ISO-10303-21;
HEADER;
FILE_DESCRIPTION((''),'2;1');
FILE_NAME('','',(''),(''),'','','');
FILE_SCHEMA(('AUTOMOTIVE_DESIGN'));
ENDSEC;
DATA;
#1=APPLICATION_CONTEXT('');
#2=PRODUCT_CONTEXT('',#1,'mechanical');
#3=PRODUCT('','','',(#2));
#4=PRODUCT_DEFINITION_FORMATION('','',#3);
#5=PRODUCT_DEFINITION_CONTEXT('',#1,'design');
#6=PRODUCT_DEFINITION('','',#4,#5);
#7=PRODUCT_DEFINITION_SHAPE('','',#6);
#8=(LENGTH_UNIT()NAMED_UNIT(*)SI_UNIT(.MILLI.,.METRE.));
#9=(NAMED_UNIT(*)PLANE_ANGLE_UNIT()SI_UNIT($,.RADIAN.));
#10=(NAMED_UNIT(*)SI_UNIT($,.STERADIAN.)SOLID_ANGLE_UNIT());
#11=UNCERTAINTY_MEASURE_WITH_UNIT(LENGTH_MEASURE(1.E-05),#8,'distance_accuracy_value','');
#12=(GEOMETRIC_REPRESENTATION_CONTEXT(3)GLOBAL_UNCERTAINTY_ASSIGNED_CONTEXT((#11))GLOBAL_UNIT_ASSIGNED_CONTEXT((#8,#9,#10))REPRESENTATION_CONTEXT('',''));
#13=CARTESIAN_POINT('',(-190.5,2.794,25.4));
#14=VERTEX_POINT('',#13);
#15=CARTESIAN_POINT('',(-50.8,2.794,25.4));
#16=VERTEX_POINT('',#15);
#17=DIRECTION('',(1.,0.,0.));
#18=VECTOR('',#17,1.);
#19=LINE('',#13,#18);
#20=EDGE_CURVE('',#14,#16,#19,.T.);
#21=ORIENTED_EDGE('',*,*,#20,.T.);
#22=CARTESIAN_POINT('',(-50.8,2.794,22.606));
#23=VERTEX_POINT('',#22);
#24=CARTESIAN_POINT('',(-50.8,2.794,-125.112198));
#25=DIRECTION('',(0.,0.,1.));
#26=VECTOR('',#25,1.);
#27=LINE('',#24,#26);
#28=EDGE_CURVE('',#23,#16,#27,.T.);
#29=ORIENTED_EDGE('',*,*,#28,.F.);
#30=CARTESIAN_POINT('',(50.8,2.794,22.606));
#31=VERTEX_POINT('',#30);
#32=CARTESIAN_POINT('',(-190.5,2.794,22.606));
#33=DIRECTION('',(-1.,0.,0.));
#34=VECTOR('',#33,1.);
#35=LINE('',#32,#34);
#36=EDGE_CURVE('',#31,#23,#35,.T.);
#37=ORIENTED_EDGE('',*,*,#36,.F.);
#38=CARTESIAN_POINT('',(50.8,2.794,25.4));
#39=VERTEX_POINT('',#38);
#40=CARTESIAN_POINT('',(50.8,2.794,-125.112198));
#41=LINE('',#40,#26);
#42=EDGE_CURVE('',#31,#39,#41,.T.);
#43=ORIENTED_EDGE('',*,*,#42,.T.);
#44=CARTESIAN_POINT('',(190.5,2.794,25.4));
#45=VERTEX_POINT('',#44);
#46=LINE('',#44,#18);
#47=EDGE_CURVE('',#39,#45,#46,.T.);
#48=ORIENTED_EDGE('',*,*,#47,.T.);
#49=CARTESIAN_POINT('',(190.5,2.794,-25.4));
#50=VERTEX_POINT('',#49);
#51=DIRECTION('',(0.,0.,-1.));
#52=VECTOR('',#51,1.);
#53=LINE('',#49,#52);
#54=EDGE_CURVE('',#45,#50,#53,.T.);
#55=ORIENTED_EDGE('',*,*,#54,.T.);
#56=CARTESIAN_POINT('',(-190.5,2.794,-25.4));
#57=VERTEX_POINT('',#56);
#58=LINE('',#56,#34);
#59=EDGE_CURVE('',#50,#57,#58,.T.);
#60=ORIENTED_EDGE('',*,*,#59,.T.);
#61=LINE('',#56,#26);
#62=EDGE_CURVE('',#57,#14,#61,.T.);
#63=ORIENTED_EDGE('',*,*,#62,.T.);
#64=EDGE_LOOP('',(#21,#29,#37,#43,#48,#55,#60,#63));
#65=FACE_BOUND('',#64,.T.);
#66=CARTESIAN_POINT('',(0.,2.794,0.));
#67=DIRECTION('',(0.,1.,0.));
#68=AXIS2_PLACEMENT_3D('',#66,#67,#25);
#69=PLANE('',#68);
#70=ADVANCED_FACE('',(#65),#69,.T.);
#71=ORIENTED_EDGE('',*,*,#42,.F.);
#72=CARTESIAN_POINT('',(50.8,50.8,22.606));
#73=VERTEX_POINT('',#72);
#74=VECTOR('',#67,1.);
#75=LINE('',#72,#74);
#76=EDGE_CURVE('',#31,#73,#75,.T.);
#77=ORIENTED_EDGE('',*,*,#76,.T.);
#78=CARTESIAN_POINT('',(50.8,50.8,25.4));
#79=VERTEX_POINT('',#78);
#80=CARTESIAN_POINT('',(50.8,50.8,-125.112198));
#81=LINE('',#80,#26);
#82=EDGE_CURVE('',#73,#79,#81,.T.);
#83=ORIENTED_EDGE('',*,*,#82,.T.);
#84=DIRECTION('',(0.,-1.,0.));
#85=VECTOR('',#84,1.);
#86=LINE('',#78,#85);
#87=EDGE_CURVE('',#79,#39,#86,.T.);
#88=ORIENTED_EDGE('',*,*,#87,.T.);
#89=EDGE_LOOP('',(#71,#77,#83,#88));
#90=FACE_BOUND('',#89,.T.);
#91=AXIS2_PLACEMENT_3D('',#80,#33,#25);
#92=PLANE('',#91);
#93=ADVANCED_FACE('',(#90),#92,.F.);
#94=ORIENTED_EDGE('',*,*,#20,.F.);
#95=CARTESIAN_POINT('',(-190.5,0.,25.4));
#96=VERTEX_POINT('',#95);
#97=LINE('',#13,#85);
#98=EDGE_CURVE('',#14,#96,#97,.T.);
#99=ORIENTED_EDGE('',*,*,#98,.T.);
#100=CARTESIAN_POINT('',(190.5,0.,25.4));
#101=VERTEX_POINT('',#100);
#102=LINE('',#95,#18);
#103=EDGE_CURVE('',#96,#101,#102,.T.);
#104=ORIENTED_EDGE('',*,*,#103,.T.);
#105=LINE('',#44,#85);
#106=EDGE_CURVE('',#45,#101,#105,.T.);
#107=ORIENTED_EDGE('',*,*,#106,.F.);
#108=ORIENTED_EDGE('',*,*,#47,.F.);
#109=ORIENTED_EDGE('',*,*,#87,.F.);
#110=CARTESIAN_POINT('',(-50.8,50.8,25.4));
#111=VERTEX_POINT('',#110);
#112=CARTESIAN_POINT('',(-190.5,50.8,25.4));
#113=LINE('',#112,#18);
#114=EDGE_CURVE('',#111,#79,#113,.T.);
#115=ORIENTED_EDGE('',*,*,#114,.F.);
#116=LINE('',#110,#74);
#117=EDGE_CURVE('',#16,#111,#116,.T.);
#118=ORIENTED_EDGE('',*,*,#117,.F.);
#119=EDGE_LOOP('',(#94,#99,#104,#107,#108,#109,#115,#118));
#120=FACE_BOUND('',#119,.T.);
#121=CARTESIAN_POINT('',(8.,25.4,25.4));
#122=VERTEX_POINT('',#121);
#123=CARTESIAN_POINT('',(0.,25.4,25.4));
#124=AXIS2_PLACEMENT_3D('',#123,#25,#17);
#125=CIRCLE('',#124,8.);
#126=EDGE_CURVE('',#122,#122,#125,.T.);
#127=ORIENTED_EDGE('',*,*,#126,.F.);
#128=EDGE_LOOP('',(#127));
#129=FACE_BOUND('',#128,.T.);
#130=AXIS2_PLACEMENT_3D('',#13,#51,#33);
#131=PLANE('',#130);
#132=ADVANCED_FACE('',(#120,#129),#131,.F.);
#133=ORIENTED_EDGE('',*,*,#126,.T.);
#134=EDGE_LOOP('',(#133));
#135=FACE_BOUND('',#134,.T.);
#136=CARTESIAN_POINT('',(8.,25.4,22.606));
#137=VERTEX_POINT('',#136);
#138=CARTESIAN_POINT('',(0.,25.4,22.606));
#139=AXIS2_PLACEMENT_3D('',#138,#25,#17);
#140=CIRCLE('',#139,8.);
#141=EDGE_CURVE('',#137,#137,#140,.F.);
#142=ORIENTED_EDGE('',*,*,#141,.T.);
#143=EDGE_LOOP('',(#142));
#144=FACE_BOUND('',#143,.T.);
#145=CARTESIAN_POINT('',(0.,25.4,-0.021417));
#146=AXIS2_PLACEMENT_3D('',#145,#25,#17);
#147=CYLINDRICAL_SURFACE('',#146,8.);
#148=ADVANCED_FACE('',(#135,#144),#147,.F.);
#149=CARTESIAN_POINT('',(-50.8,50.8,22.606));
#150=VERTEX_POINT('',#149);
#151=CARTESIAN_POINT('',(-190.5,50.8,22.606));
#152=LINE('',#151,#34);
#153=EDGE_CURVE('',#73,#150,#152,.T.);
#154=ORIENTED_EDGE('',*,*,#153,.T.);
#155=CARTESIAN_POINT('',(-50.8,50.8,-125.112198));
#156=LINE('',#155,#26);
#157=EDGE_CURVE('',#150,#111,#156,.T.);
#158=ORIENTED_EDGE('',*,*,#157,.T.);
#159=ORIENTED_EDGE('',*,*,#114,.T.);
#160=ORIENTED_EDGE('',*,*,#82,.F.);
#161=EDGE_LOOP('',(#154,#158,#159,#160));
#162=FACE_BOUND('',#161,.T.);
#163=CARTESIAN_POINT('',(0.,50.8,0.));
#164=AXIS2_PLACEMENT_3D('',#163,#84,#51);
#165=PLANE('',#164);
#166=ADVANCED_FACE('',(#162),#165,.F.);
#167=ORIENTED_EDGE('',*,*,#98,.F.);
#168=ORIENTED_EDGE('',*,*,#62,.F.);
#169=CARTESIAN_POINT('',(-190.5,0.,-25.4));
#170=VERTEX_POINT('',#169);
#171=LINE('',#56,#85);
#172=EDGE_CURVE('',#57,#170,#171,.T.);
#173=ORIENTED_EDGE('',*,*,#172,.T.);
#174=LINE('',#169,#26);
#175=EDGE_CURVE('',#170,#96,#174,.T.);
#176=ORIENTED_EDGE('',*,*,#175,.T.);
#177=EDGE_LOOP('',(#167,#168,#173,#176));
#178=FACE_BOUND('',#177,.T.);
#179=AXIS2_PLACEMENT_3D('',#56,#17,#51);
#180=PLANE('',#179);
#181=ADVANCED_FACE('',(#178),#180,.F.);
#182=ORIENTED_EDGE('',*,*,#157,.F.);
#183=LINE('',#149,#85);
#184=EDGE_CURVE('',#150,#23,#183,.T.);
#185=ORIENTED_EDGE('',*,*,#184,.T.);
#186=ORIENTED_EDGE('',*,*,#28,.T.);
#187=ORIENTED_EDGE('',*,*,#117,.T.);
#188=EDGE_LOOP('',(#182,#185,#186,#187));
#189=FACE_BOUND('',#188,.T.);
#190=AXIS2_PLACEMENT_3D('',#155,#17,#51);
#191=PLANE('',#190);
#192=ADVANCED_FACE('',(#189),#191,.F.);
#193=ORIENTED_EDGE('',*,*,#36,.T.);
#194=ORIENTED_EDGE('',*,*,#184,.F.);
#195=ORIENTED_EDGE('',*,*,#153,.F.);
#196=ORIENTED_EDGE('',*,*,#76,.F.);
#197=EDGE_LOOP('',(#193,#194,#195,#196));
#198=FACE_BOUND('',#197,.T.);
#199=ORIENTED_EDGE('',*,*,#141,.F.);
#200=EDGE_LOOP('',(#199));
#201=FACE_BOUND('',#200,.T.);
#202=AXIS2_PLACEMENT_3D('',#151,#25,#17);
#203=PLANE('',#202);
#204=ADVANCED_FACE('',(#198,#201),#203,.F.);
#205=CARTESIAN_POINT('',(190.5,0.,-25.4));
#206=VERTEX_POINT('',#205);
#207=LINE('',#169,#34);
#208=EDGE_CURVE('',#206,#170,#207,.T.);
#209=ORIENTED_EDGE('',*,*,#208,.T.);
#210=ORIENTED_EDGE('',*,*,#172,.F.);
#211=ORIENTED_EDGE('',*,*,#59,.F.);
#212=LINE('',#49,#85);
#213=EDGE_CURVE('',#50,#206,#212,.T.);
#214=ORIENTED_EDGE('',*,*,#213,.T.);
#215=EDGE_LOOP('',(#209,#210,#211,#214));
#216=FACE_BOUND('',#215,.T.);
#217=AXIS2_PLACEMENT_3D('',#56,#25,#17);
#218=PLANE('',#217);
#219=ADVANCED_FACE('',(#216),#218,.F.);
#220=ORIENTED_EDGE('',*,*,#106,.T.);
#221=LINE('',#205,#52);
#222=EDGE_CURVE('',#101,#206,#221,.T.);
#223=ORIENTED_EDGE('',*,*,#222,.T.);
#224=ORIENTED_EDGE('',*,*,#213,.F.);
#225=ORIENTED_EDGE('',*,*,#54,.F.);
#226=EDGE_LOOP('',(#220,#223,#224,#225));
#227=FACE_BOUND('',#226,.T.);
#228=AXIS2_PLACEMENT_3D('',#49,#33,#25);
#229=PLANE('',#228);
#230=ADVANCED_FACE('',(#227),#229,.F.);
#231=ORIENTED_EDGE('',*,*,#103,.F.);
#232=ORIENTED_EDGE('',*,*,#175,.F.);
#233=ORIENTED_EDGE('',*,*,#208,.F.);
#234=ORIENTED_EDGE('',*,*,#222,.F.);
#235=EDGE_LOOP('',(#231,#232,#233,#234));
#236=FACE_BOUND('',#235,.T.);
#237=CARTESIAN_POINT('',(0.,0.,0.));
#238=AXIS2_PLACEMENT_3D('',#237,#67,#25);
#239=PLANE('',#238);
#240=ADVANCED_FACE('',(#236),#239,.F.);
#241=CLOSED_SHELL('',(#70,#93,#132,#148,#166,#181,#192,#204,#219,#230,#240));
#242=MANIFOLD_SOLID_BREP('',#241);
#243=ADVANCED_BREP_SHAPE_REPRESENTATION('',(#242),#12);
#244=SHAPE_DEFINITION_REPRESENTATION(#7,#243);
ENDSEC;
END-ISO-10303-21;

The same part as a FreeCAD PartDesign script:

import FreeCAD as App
import Part
import Sketcher
from FreeCAD import Vector
Q = App.Units.Quantity


def add_polygon(sketch, points):
    """Adds a closed chain of lines whose ends are joined by coincident constraints."""
    first, n = sketch.GeometryCount, len(points)
    for a, b in zip(points, points[1:] + points[:1]):
        sketch.addGeometry(Part.LineSegment(App.Vector(*a, 0), App.Vector(*b, 0)), False)
    for i in range(n):
        sketch.addConstraint(Sketcher.Constraint("Coincident", first + i, 2, first + (i + 1) % n, 1))

doc = App.newDocument("Part")
body = doc.addObject("PartDesign::Body", "Body")

sketch1 = body.newObject("Sketcher::SketchObject", "Sketch")
sketch1.AttachmentSupport = (doc.getObject("XZ_Plane"), [""])
sketch1.MapMode = "FlatFace"
add_polygon(sketch1, [(-190, -25), (-190, 25), (190, 25), (190, -25)])
sketch1.addConstraint([
    Sketcher.Constraint("Vertical", 0),
    Sketcher.Constraint("Horizontal", 1),
    Sketcher.Constraint("Vertical", 2),
    Sketcher.Constraint("Horizontal", 3),
    Sketcher.Constraint("Symmetric", 0, 2, 2, 2, -1, 1),
    Sketcher.Constraint("DistanceX", 1, 1, 1, 2, Q("15 in")),
    Sketcher.Constraint("DistanceY", 0, 1, 0, 2, Q("2 in")),
])
pad1 = body.newObject("PartDesign::Pad", "Pad")
pad1.Profile = sketch1
pad1.Length = Q("0.11 in")
pad1.Reversed = True

sketch2 = body.newObject("Sketcher::SketchObject", "Sketch001")
sketch2.AttachmentSupport = (doc.getObject("XZ_Plane"), [""])
sketch2.MapMode = "FlatFace"
sketch2.AttachmentOffset = App.Placement(Vector(0, 0, -0.11 * 25.4), App.Rotation())
add_polygon(sketch2, [(-190.5, 22.6), (-190.5, 25.4), (190.5, 25.4), (190.5, 22.6)])
sketch2.addConstraint([
    Sketcher.Constraint("Vertical", 0),
    Sketcher.Constraint("Horizontal", 1),
    Sketcher.Constraint("Vertical", 2),
    Sketcher.Constraint("Horizontal", 3),
    Sketcher.Constraint("DistanceX", 1, 1, 1, 2, Q("15 in")),
    Sketcher.Constraint("DistanceY", -1, 1, 0, 2, Q("1 in")),
    Sketcher.Constraint("DistanceY", 0, 1, 0, 2, Q("0.11 in")),
    Sketcher.Constraint("DistanceX", 0, 2, -1, 1, Q("7.5 in")),
])
pad2 = body.newObject("PartDesign::Pad", "Pad001")
pad2.Profile = sketch2
pad2.Length = Q("1.89 in")
pad2.Reversed = True

sketch3 = body.newObject("Sketcher::SketchObject", "Sketch002")
sketch3.AttachmentSupport = (doc.getObject("XY_Plane"), [""])
sketch3.MapMode = "FlatFace"
sketch3.AttachmentOffset = App.Placement(Vector(0, 0, 1 * 25.4), App.Rotation())
sketch3.addGeometry(Part.Circle(Vector(0, 25, 0), Vector(0, 0, 1), 8), False)
sketch3.addConstraint([
    Sketcher.Constraint("PointOnObject", 0, 3, -2),
    Sketcher.Constraint("DistanceY", -1, 1, 0, 3, Q("1 in")),
    Sketcher.Constraint("Diameter", 0, 16.0),
])
pocket1 = body.newObject("PartDesign::Pocket", "Pocket")
pocket1.Profile = sketch3
pocket1.Length = Q("0.11 in")

sketch4 = body.newObject("Sketcher::SketchObject", "Sketch003")
sketch4.AttachmentSupport = (doc.getObject("XY_Plane"), [""])
sketch4.MapMode = "FlatFace"
sketch4.AttachmentOffset = App.Placement(Vector(0, 0, 1 * 25.4), App.Rotation())
add_polygon(sketch4, [(-190, 51), (-190, 3), (-51, 3), (-51, 51)])
add_polygon(sketch4, [(51, 51), (51, 3), (190, 3), (190, 51)])
sketch4.addConstraint([
    Sketcher.Constraint("Vertical", 0),
    Sketcher.Constraint("Horizontal", 1),
    Sketcher.Constraint("Vertical", 2),
    Sketcher.Constraint("Horizontal", 3),
    Sketcher.Constraint("Vertical", 4),
    Sketcher.Constraint("Horizontal", 5),
    Sketcher.Constraint("Vertical", 6),
    Sketcher.Constraint("Horizontal", 7),
    Sketcher.Constraint("Symmetric", 1, 2, 4, 2, -2),
    Sketcher.Constraint("Symmetric", 3, 2, 6, 2, -2),
    Sketcher.Constraint("DistanceX", 1, 1, 1, 2, Q("5.5 in")),
    Sketcher.Constraint("DistanceX", 1, 2, -1, 1, Q("2 in")),
    Sketcher.Constraint("DistanceY", -1, 1, 2, 2, Q("2 in")),
    Sketcher.Constraint("DistanceY", 0, 2, 0, 1, Q("1.89 in")),
])
pocket2 = body.newObject("PartDesign::Pocket", "Pocket001")
pocket2.Profile = sketch4
pocket2.Length = Q("0.11 in")

doc.recompute()
